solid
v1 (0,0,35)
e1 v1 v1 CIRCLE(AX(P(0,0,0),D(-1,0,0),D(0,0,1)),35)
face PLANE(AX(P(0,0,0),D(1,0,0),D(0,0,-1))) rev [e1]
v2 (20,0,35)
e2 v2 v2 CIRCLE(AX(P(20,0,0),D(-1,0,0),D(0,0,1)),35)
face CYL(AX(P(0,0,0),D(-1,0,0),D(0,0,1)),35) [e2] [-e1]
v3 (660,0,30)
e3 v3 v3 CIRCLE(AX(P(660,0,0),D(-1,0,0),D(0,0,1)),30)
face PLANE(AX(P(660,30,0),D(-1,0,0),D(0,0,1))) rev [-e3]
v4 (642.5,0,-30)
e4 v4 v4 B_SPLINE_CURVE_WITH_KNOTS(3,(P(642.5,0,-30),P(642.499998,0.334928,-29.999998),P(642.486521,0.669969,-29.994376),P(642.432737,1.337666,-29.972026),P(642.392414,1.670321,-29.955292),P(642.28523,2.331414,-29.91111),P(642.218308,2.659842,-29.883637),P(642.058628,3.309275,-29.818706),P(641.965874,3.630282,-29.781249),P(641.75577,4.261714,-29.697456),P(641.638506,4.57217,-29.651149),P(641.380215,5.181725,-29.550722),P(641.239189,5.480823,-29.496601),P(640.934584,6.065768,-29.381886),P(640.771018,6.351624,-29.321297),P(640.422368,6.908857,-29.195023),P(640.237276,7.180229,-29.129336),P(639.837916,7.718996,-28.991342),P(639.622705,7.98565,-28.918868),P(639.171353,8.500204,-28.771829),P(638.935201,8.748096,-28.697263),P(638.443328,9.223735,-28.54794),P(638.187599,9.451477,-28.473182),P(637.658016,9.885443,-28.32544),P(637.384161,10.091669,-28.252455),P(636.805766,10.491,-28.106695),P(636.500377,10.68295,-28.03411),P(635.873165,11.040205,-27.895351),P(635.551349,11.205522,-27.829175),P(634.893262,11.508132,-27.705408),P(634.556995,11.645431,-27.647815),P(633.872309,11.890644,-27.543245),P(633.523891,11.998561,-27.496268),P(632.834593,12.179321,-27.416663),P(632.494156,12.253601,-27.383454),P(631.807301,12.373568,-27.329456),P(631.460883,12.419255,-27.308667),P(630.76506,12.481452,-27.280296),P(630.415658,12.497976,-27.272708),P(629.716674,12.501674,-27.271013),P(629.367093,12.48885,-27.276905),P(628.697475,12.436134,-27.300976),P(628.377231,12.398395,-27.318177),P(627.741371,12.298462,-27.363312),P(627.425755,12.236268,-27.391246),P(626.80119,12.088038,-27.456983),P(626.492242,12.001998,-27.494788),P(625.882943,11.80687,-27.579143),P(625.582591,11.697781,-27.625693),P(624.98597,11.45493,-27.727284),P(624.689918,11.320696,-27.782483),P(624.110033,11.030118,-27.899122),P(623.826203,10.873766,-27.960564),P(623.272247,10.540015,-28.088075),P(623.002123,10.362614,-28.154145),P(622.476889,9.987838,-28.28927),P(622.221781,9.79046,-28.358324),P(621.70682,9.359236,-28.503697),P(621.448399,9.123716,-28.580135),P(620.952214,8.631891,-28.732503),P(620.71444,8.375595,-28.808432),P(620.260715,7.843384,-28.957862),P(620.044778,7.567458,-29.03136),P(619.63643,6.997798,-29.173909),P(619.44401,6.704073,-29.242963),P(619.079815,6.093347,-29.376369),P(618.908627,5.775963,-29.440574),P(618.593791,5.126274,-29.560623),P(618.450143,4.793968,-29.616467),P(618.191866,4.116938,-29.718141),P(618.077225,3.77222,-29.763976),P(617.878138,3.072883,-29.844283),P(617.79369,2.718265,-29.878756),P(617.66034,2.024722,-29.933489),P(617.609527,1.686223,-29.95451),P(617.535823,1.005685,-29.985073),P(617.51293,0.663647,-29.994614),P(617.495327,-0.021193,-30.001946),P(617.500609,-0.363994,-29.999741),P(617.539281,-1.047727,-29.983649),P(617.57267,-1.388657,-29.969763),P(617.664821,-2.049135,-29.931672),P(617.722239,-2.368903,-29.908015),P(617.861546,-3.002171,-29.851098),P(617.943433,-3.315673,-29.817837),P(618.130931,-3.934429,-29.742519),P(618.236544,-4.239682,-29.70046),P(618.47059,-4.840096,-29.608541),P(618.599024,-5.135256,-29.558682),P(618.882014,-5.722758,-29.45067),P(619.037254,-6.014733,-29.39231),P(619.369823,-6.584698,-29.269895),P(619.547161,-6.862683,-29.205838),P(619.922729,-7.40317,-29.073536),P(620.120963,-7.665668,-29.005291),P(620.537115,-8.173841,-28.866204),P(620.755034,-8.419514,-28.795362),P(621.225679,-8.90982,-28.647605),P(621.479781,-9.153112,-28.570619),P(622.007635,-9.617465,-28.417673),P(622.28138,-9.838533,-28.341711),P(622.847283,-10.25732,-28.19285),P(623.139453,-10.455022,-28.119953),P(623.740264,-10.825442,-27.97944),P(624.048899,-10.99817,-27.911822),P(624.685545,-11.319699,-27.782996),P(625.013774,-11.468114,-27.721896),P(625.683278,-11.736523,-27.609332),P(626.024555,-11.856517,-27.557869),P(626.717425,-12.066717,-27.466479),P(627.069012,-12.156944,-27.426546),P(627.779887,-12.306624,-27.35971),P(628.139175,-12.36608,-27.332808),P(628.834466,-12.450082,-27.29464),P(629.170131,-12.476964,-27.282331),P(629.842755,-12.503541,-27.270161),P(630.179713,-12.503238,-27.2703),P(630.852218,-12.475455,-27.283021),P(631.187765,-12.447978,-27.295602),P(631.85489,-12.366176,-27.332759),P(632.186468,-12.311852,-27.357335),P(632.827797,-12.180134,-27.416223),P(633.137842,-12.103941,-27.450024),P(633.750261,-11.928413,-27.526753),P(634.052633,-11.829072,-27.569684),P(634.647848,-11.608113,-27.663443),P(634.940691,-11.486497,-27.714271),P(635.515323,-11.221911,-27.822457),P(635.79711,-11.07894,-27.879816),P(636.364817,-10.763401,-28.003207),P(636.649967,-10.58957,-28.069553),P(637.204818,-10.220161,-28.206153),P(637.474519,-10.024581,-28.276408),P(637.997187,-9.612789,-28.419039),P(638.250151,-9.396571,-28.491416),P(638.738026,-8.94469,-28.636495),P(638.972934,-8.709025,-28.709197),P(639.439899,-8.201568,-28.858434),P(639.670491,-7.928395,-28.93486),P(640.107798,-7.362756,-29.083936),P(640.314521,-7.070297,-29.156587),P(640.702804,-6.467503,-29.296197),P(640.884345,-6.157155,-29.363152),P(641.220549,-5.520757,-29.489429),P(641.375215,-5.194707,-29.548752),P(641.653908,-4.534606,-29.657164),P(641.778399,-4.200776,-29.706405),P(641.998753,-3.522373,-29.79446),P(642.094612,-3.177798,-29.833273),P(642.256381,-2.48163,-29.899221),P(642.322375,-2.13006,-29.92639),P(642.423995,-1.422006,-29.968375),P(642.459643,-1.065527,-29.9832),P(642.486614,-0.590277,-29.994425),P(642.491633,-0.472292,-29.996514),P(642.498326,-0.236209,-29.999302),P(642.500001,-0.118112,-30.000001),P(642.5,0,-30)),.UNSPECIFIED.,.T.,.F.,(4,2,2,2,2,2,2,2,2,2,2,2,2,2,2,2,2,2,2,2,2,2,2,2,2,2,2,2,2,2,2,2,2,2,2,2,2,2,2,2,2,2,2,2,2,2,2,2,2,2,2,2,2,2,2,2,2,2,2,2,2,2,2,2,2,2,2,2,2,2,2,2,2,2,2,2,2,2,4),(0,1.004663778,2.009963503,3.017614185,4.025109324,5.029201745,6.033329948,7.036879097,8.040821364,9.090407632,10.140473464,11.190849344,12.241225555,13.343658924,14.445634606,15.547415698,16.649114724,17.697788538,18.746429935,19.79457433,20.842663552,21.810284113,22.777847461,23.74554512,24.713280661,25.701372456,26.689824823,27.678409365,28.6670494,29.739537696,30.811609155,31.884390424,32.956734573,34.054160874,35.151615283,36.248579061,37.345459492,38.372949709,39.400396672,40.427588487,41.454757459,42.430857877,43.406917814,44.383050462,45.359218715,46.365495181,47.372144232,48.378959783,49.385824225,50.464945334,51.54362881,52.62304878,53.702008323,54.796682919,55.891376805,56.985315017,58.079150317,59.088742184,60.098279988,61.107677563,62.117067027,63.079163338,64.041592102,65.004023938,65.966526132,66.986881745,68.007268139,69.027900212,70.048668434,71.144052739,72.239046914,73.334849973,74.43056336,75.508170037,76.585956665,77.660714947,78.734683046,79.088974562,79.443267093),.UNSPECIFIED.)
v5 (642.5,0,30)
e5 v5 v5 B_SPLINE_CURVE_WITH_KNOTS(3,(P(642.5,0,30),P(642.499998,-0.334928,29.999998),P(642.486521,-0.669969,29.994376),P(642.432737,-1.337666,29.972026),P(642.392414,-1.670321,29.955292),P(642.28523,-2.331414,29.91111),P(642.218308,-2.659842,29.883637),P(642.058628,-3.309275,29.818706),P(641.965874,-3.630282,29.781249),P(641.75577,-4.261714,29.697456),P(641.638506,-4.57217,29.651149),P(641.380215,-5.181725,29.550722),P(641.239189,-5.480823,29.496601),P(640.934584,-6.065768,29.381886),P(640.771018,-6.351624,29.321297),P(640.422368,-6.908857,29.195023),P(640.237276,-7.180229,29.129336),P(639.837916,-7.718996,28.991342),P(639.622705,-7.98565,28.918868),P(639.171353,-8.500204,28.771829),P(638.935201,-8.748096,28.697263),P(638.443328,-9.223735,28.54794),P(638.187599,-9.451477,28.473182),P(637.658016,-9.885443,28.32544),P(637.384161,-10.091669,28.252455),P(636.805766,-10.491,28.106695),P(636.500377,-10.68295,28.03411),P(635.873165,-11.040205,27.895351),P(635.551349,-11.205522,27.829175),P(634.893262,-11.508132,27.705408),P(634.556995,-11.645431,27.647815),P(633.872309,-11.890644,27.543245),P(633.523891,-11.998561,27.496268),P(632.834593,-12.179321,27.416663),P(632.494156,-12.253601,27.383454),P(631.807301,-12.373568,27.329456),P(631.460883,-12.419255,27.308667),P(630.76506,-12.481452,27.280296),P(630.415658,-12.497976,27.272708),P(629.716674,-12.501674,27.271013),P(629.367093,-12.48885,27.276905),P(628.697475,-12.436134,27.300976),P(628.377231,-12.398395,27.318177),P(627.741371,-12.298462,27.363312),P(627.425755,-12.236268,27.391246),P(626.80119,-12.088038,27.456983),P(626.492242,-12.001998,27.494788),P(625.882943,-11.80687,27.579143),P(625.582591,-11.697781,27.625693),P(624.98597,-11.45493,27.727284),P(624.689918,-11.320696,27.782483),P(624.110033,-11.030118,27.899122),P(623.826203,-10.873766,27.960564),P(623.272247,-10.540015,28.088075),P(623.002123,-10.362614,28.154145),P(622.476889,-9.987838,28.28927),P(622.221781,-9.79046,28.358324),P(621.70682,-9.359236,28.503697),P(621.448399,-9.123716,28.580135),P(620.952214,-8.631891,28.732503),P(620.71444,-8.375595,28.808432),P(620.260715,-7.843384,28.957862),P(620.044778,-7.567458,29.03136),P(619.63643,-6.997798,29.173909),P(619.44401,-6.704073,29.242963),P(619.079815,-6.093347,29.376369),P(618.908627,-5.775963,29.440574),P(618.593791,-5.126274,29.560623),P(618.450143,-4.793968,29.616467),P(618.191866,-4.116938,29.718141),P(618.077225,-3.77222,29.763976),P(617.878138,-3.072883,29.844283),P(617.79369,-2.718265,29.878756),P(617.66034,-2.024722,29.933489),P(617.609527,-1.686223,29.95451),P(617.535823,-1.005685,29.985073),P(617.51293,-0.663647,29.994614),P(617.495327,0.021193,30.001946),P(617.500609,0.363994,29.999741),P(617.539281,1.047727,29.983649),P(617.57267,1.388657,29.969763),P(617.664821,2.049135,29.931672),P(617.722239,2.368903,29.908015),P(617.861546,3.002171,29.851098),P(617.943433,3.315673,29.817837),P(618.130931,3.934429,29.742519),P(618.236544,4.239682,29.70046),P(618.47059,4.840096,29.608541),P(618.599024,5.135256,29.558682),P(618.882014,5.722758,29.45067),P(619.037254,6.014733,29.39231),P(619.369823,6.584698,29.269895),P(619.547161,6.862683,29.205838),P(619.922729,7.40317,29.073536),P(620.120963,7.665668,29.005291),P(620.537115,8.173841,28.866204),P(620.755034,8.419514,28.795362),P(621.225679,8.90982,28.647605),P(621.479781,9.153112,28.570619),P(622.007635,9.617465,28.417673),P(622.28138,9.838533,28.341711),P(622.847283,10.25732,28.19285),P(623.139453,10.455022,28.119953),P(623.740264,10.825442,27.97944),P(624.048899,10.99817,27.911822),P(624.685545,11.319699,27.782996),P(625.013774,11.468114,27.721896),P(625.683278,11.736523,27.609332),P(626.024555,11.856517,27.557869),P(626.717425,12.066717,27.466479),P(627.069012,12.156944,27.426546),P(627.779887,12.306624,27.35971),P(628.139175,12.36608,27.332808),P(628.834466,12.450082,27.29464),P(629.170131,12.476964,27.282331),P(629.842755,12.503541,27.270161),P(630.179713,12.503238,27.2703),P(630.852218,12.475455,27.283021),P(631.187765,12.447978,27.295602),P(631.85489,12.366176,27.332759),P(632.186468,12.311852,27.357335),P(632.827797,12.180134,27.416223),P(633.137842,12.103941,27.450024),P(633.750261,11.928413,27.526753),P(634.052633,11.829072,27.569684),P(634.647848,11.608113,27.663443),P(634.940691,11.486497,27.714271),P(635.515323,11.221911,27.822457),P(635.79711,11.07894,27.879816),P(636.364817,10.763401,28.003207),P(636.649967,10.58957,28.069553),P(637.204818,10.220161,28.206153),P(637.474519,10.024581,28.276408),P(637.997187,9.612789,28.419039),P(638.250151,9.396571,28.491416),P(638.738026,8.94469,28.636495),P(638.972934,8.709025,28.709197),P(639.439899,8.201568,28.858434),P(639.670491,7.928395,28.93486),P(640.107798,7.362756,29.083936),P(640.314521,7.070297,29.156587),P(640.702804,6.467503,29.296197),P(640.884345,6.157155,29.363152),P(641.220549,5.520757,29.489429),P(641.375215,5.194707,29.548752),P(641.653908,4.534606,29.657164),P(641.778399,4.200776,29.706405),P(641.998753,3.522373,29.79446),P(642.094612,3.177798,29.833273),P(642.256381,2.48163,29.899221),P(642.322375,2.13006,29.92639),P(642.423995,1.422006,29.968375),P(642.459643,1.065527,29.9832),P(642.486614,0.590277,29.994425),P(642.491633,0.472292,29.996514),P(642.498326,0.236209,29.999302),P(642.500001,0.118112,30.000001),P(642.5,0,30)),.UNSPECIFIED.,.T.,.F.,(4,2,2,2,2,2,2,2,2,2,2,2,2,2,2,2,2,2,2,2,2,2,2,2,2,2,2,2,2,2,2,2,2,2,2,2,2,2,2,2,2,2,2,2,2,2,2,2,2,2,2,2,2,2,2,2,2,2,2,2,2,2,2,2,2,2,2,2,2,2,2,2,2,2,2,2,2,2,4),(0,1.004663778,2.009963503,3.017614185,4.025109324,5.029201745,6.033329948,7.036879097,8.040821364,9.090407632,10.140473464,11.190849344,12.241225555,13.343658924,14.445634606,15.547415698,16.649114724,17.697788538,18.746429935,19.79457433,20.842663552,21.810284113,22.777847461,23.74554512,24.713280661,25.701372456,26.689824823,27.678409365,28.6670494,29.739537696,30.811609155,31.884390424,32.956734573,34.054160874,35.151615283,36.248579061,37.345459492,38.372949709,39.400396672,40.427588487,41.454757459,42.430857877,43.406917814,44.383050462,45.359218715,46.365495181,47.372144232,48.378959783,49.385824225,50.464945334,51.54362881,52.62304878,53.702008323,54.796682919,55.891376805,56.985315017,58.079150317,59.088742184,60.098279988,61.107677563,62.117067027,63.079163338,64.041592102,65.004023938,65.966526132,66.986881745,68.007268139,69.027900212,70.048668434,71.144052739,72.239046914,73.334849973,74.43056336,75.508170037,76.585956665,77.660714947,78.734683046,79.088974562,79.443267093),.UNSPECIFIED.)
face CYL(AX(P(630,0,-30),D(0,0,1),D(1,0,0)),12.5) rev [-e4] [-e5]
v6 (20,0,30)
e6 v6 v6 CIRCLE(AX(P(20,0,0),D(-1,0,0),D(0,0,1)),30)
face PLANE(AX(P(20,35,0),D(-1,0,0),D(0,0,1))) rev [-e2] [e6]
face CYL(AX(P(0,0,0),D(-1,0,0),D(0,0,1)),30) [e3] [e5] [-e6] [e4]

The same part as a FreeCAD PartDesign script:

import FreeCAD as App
import Part
import Sketcher
from FreeCAD import Vector
Q = App.Units.Quantity

doc = App.newDocument("Part")
body = doc.addObject("PartDesign::Body", "Body")

sketch1 = body.newObject("Sketcher::SketchObject", "Sketch")
sketch1.AttachmentSupport = (doc.getObject("XY_Plane"), [""])
sketch1.MapMode = "FlatFace"
sketch1.addGeometry([
    Part.LineSegment(Vector(0, 35, 0), Vector(0, 0, 0)),
    Part.LineSegment(Vector(0, 0, 0), Vector(660, 0, 0)),
    Part.LineSegment(Vector(660, 0, 0), Vector(660, 30, 0)),
    Part.LineSegment(Vector(660, 30, 0), Vector(20, 30, 0)),
    Part.LineSegment(Vector(20, 30, 0), Vector(20, 35, 0)),
    Part.LineSegment(Vector(20, 35, 0), Vector(0, 35, 0)),
], False)
sketch1.addConstraint([
    Sketcher.Constraint("Coincident", 0, 2, 1, 1),
    Sketcher.Constraint("Coincident", 1, 2, 2, 1),
    Sketcher.Constraint("Coincident", 2, 2, 3, 1),
    Sketcher.Constraint("Coincident", 3, 2, 4, 1),
    Sketcher.Constraint("Coincident", 4, 2, 5, 1),
    Sketcher.Constraint("Coincident", 5, 2, 0, 1),
    Sketcher.Constraint("Vertical", 0),
    Sketcher.Constraint("Horizontal", 1),
    Sketcher.Constraint("Vertical", 2),
    Sketcher.Constraint("Horizontal", 3),
    Sketcher.Constraint("Vertical", 4),
    Sketcher.Constraint("Horizontal", 5),
    Sketcher.Constraint("Coincident", 0, 2, -1, 1),
    Sketcher.Constraint("DistanceX", 1, 1, 1, 2, Q("660 mm")),
    Sketcher.Constraint("DistanceX", 3, 2, 3, 1, Q("640 mm")),
    Sketcher.Constraint("DistanceY", 0, 2, 0, 1, Q("35 mm")),
    Sketcher.Constraint("DistanceY", 2, 1, 2, 2, Q("30 mm")),
])
revolution = body.newObject("PartDesign::Revolution", "Revolution")
revolution.Profile = sketch1
revolution.ReferenceAxis = (sketch1, ["H_Axis"])
revolution.Angle = 360

sketch2 = body.newObject("Sketcher::SketchObject", "Sketch001")
sketch2.AttachmentSupport = (doc.getObject("XY_Plane"), [""])
sketch2.MapMode = "FlatFace"
sketch2.addGeometry(Part.Circle(Vector(630, 0, 0), Vector(0, 0, 1), 12.5), False)
sketch2.addConstraint([
    Sketcher.Constraint("PointOnObject", 0, 3, -1),
    Sketcher.Constraint("Diameter", 0, Q("25 mm")),
    Sketcher.Constraint("DistanceX", -1, 1, 0, 3, Q("630 mm")),
])
pocket1 = body.newObject("PartDesign::Pocket", "Pocket")
pocket1.Profile = sketch2
pocket1.Length = 60
pocket1.Midplane = True

doc.recompute()
